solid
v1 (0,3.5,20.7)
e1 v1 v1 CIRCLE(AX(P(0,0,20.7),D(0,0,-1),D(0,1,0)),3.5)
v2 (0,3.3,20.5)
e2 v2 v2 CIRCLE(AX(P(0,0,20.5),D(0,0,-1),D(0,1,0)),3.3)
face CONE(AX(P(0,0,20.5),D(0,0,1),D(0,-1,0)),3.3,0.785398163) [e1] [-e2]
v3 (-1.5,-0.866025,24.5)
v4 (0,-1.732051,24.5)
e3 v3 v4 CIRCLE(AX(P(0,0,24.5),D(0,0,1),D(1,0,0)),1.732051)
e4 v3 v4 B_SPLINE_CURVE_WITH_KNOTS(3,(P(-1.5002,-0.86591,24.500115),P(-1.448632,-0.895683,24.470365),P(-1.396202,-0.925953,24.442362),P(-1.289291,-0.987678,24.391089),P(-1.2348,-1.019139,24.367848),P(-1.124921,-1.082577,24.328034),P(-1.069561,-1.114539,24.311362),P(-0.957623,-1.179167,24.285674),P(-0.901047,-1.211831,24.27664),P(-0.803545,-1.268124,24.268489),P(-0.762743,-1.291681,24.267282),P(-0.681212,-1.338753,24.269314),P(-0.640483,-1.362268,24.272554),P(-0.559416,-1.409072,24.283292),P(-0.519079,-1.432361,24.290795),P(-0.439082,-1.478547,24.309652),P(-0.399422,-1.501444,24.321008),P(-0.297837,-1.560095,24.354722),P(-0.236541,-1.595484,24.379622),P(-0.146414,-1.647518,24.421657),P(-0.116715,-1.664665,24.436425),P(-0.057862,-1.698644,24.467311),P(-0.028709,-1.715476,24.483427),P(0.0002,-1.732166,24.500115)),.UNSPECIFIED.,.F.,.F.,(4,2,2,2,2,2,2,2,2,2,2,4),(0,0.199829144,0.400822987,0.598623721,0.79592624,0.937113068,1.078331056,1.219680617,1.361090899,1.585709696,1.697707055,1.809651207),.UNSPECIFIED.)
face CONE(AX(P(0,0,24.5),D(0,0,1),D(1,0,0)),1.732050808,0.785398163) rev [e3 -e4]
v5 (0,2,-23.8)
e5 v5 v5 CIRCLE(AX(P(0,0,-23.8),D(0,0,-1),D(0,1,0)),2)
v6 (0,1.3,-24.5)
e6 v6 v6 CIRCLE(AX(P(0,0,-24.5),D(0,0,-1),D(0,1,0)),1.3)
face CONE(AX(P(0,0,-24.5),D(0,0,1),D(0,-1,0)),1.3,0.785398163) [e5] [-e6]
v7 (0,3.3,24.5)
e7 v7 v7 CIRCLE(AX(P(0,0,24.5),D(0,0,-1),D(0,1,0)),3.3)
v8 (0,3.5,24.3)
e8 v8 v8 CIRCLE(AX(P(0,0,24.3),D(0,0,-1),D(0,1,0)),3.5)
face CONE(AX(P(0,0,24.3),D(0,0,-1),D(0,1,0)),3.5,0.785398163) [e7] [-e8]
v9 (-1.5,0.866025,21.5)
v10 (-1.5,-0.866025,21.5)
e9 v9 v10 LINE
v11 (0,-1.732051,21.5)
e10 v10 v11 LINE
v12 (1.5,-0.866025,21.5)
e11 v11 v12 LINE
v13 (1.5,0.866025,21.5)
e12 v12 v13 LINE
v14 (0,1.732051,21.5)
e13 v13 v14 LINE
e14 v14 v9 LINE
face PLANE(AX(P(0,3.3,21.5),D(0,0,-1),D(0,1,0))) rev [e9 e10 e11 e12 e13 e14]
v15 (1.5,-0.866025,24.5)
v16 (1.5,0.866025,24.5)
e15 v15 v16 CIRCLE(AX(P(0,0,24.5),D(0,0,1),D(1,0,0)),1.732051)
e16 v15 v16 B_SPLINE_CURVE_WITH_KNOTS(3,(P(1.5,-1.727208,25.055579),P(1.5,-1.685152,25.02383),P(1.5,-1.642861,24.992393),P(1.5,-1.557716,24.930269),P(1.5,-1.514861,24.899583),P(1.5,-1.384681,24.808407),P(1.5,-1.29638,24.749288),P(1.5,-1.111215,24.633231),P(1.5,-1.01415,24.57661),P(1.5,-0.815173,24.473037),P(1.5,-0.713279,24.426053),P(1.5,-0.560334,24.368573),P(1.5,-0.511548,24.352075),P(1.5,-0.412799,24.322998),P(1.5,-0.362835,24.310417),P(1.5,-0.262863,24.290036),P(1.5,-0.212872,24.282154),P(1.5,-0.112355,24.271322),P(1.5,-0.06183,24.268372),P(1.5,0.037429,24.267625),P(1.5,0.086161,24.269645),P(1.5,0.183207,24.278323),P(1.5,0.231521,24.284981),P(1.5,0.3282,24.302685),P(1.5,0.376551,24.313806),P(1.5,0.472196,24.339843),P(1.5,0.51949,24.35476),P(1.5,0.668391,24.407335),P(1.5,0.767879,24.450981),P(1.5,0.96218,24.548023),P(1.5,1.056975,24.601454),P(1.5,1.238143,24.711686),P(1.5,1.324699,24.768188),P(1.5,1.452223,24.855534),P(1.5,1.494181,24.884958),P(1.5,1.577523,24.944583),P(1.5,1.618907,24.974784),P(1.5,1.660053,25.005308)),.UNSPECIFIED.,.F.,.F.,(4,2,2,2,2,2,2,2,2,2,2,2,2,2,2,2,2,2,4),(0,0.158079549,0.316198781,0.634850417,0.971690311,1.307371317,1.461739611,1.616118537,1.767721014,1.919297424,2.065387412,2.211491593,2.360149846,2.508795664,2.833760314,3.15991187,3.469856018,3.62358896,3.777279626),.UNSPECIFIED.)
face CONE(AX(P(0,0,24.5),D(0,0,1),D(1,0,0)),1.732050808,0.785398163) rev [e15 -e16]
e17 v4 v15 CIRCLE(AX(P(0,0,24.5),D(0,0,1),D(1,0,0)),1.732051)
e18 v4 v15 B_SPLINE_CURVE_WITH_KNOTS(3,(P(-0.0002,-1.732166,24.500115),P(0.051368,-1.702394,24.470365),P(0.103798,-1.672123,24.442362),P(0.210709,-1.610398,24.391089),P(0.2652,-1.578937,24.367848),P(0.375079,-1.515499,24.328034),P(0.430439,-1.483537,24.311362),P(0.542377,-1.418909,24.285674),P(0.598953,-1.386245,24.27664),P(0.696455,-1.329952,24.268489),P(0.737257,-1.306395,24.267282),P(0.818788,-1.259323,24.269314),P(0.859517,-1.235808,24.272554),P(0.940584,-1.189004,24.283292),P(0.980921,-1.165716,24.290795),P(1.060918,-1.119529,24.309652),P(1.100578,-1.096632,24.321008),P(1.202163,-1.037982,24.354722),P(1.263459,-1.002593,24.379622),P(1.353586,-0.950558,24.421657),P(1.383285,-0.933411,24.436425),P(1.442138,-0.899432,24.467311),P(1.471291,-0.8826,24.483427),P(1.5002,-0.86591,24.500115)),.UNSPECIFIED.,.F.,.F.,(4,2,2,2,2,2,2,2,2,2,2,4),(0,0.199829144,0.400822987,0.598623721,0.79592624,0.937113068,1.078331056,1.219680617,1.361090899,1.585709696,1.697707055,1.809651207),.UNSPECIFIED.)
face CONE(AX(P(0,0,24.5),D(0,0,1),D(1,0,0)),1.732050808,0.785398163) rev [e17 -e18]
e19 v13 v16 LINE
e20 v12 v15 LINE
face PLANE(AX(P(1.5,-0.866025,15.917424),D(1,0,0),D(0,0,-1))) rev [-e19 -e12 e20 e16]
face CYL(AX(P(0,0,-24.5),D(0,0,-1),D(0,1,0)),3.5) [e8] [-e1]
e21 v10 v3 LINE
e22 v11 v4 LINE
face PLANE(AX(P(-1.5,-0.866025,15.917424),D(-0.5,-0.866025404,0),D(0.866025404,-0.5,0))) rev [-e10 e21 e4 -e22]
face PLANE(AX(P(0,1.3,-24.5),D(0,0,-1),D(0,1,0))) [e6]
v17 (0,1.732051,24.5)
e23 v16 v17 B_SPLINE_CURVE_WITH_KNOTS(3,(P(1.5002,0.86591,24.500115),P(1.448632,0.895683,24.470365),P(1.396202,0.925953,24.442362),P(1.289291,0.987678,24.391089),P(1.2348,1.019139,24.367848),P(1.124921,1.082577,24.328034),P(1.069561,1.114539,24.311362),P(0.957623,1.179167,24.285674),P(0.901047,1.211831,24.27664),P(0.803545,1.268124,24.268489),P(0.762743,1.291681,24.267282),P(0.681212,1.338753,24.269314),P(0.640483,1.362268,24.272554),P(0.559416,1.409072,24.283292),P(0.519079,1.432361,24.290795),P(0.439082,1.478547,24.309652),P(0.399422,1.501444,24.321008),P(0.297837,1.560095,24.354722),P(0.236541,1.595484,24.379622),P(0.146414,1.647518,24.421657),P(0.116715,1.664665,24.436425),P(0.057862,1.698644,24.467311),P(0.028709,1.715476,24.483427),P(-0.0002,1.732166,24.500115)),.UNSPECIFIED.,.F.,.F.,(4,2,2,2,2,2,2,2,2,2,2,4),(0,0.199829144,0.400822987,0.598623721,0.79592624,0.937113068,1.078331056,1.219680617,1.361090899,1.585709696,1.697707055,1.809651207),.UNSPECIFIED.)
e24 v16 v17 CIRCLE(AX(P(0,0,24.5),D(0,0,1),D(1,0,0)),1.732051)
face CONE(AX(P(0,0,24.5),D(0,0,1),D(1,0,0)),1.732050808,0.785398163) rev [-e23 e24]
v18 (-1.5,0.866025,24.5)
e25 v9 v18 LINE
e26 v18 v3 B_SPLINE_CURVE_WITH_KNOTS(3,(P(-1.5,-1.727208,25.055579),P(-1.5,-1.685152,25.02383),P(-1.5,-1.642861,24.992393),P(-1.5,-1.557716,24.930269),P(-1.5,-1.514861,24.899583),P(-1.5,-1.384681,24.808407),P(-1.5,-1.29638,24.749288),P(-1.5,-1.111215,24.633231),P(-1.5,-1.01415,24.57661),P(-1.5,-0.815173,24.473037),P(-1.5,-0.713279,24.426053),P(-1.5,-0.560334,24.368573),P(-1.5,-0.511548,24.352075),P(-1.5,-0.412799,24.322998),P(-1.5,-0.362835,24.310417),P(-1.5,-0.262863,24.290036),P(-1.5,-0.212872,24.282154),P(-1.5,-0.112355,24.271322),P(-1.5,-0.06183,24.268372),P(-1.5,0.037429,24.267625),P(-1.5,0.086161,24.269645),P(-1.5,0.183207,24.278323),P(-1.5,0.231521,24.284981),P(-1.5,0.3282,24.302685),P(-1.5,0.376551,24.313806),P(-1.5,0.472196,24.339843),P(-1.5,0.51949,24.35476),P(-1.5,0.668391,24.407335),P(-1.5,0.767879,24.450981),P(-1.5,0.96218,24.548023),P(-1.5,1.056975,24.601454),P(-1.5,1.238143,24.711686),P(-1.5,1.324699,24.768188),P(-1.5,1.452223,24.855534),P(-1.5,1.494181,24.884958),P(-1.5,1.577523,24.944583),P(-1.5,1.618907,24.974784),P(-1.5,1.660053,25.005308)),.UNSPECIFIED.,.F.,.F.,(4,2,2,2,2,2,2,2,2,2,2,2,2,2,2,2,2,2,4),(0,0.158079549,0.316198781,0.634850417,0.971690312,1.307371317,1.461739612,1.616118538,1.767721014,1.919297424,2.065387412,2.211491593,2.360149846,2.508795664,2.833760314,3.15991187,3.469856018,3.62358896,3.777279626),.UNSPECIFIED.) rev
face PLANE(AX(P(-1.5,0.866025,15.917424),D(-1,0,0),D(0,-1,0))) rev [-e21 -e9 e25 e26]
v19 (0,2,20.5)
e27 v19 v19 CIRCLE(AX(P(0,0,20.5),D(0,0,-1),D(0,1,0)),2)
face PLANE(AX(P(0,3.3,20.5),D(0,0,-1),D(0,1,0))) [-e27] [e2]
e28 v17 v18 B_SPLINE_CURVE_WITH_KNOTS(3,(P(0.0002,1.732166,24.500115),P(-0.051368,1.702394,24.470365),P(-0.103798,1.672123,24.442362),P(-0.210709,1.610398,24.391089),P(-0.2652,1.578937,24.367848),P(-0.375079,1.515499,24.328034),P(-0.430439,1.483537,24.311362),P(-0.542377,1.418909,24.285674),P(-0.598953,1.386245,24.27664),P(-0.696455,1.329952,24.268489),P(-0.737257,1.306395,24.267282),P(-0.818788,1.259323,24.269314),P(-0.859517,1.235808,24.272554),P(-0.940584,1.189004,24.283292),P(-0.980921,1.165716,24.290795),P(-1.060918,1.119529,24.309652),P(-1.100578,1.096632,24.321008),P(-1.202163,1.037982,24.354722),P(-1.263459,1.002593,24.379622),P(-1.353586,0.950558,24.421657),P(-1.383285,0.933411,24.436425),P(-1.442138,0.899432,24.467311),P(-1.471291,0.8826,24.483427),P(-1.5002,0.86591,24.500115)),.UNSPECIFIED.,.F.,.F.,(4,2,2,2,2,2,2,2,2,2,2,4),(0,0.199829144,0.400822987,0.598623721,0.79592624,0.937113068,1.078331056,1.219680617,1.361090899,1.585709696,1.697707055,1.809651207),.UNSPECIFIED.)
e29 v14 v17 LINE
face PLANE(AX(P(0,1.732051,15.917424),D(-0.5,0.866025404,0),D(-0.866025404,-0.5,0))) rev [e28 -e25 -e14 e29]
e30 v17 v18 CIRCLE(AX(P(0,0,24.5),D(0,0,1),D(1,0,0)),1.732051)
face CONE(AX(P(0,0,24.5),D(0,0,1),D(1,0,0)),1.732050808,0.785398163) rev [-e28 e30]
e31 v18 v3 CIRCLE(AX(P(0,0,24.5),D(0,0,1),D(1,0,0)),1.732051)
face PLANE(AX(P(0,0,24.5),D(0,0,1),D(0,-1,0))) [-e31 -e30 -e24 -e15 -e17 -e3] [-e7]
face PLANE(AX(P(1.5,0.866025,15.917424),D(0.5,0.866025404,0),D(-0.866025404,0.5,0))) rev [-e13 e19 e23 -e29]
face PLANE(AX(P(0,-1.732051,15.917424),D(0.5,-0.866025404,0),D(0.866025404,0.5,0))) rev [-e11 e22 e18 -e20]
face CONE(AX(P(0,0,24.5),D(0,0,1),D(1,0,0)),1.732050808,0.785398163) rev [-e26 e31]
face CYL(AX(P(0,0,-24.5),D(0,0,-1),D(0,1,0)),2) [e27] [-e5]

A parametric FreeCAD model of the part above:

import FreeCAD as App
import Part
import Sketcher
from FreeCAD import Vector
Q = App.Units.Quantity


def add_polygon(sketch, points):
    """Adds a closed chain of lines whose ends are joined by coincident constraints."""
    first, n = sketch.GeometryCount, len(points)
    for a, b in zip(points, points[1:] + points[:1]):
        sketch.addGeometry(Part.LineSegment(App.Vector(*a, 0), App.Vector(*b, 0)), False)
    for i in range(n):
        sketch.addConstraint(Sketcher.Constraint("Coincident", first + i, 2, first + (i + 1) % n, 1))

doc = App.newDocument("Part")
body = doc.addObject("PartDesign::Body", "Body")

sketch1 = body.newObject("Sketcher::SketchObject", "Sketch")
sketch1.AttachmentSupport = (doc.getObject("YZ_Plane"), [""])
sketch1.MapMode = "FlatFace"
add_polygon(sketch1, [(3.3, 24.5), (0, 24.5), (0, -24.5), (1.3, -24.5), (2, -23.8), (2, 20.5), (3.3, 20.5), (3.5, 20.7), (3.5, 24.3)])
sketch1.addConstraint([
    Sketcher.Constraint("Horizontal", 0),
    Sketcher.Constraint("Vertical", 1),
    Sketcher.Constraint("Horizontal", 2),
    Sketcher.Constraint("Vertical", 4),
    Sketcher.Constraint("Horizontal", 5),
    Sketcher.Constraint("Vertical", 7),
    Sketcher.Constraint("Symmetric", 0, 2, 1, 2, -1, 1),
    Sketcher.Constraint("Parallel", 3, 6),
    Sketcher.Constraint("Perpendicular", 6, 8),
    Sketcher.Constraint("Vertical", 5, 2, 8, 2),
    Sketcher.Constraint("Equal", 2, 5),
    Sketcher.Constraint("Equal", 6, 8),
    Sketcher.Constraint("DistanceY", 1, 2, 1, 1, Q("49 mm")),
    Sketcher.Constraint("DistanceX", 0, 2, 0, 1, Q("3.3 mm")),
    Sketcher.Constraint("DistanceX", 2, 1, 2, 2, Q("1.3 mm")),
    Sketcher.Constraint("DistanceY", 4, 1, 4, 2, Q("44.3 mm")),
    Sketcher.Constraint("DistanceY", 7, 1, 7, 2, Q("3.6 mm")),
])
revolution = body.newObject("PartDesign::Revolution", "Revolution")
revolution.Profile = sketch1
revolution.ReferenceAxis = (sketch1, ["V_Axis"])
revolution.Angle = 360

sketch2 = body.newObject("Sketcher::SketchObject", "Sketch001")
sketch2.AttachmentSupport = (doc.getObject("XY_Plane"), [""])
sketch2.MapMode = "FlatFace"
sketch2.AttachmentOffset = App.Placement(Vector(0, 0, 24.5), App.Rotation())
add_polygon(sketch2, [(1.5, -0.9), (1.5, 0.9), (0, 1.7), (-1.5, 0.9), (-1.5, -0.9), (0, -1.7)])
sketch2.addConstraint([
    Sketcher.Constraint("Vertical", 0),
    Sketcher.Constraint("Vertical", 3),
    Sketcher.Constraint("Symmetric", 0, 2, 3, 2, -1, 1),
    Sketcher.Constraint("Symmetric", 1, 2, 4, 2, -1, 1),
    Sketcher.Constraint("PointOnObject", 1, 2, -2),
    Sketcher.Constraint("Parallel", 2, 5),
    Sketcher.Constraint("Horizontal", 0, 2, 2, 2),
    Sketcher.Constraint("Angle", 1, Q("150 deg")),
    Sketcher.Constraint("DistanceX", 2, 2, 0, 2, Q("3 mm")),
    Sketcher.Constraint("DistanceY", 0, 1, 0, 2, Q("1.732051 mm")),
])
pocket1 = body.newObject("PartDesign::Pocket", "Pocket")
pocket1.Profile = sketch2
pocket1.Length = 3

sketch3 = body.newObject("Sketcher::SketchObject", "Sketch002")
sketch3.AttachmentSupport = (doc.getObject("YZ_Plane"), [""])
sketch3.MapMode = "FlatFace"
add_polygon(sketch3, [(0, 24.5), (-1.7, 24.5), (0, 22.8)])
sketch3.addConstraint([
    Sketcher.Constraint("Horizontal", 0),
    Sketcher.Constraint("Vertical", 2),
    Sketcher.Constraint("PointOnObject", 1, 2, -2),
    Sketcher.Constraint("Equal", 0, 2),
    Sketcher.Constraint("DistanceY", -1, 1, 0, 2, Q("24.5 mm")),
    Sketcher.Constraint("DistanceX", 0, 2, 0, 1, Q("1.732051 mm")),
])
groove = body.newObject("PartDesign::Groove", "Groove")
groove.Profile = sketch3
groove.ReferenceAxis = (sketch3, ["V_Axis"])
groove.Angle = 360

doc.recompute()
